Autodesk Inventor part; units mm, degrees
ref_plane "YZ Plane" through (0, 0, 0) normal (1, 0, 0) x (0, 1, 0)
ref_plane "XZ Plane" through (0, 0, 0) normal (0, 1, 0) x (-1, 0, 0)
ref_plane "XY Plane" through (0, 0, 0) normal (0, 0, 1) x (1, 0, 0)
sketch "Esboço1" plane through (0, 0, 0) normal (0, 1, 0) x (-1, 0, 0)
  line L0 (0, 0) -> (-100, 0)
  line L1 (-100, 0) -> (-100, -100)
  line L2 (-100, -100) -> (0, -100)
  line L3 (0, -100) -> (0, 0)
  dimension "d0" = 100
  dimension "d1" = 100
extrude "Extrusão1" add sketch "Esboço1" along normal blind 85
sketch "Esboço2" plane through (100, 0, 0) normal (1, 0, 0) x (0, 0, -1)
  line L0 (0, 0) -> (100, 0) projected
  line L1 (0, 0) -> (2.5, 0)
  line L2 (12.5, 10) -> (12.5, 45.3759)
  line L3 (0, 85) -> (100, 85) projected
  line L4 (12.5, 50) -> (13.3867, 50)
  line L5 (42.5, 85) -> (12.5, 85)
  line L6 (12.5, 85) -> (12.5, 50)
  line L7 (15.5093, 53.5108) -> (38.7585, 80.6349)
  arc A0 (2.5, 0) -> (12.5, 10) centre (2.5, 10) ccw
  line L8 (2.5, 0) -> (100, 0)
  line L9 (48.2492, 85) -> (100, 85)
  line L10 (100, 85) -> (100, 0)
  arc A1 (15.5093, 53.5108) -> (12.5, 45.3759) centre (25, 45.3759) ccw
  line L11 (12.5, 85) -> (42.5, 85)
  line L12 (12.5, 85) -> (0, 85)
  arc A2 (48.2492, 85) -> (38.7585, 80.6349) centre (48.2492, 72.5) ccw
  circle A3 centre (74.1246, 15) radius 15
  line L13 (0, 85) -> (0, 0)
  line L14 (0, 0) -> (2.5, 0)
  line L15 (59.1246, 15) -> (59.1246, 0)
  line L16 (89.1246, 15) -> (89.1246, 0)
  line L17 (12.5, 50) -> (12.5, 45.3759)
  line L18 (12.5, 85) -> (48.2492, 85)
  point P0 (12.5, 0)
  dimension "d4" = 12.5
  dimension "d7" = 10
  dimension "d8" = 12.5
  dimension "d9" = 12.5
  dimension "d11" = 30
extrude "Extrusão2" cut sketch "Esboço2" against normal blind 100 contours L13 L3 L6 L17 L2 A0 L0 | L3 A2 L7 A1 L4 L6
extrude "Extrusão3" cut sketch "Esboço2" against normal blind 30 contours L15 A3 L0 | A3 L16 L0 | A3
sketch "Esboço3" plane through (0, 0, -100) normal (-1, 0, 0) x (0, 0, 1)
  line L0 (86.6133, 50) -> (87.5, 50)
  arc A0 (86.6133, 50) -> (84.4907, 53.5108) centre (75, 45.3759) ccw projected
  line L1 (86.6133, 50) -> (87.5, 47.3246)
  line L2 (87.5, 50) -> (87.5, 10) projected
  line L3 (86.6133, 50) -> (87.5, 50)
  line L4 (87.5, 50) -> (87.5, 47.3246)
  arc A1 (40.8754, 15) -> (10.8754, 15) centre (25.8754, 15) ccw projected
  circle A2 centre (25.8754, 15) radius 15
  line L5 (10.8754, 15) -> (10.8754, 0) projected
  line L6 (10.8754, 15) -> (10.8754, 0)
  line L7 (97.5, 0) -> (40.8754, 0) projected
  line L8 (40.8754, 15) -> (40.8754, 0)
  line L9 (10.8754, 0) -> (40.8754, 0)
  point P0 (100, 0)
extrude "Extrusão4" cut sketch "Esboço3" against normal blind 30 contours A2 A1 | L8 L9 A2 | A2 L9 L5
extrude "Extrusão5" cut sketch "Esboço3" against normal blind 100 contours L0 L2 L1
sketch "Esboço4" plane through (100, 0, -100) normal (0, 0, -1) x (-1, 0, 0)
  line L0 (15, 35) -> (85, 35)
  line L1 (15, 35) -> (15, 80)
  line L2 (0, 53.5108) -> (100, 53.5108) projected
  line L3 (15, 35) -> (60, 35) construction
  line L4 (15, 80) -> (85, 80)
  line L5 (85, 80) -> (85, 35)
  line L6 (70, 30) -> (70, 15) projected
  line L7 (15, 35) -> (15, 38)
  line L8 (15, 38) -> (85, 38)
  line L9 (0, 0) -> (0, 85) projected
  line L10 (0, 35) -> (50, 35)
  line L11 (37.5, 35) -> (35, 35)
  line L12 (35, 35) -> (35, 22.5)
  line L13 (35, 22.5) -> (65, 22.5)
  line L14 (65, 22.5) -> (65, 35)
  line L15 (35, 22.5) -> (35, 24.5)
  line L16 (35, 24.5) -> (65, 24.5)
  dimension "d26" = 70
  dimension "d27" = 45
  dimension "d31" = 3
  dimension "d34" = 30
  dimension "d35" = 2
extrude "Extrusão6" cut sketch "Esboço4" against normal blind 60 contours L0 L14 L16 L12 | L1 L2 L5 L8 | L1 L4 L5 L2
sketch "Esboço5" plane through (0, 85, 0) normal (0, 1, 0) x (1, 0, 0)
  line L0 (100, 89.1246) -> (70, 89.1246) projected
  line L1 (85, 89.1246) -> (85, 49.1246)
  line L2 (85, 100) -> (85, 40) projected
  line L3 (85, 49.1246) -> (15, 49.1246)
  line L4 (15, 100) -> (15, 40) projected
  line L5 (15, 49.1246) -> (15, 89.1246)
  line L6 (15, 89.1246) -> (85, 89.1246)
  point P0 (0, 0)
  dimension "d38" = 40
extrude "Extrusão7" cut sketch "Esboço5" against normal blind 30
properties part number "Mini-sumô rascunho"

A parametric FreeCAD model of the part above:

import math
import FreeCAD as App
import Part
import Sketcher

V = App.Vector

doc = App.newDocument("Part")
body = doc.addObject("PartDesign::Body", "Body")

# Sketch on XZ plane
sketch1 = doc.addObject("Sketcher::SketchObject", "Sketch")
body.addObject(sketch1)
sketch1.AttachmentSupport = (doc.XZ_Plane, [""])
sketch1.MapMode = "FlatFace"
sketch1.addGeometry(Part.LineSegment(V(0, -100, 0), V(0, 0, 0)), False)
sketch1.addGeometry(Part.LineSegment(V(0, 0, 0), V(100, 0, 0)), False)
sketch1.addGeometry(Part.LineSegment(V(100, 0, 0), V(100, -100, 0)), False)
sketch1.addGeometry(Part.LineSegment(V(100, -100, 0), V(0, -100, 0)), False)
sketch1.addConstraint(Sketcher.Constraint("Coincident", 0, 2, 1, 1))
sketch1.addConstraint(Sketcher.Constraint("Coincident", 1, 2, 2, 1))
sketch1.addConstraint(Sketcher.Constraint("Coincident", 2, 2, 3, 1))
sketch1.addConstraint(Sketcher.Constraint("Coincident", 3, 2, 0, 1))
sketch1.addConstraint(Sketcher.Constraint("Vertical", 0))
sketch1.addConstraint(Sketcher.Constraint("Horizontal", 1))
sketch1.addConstraint(Sketcher.Constraint("Vertical", 2))
sketch1.addConstraint(Sketcher.Constraint("Horizontal", 3))
sketch1.addConstraint(Sketcher.Constraint("Coincident", 0, 2, -1, 1))
sketch1.addConstraint(Sketcher.Constraint("Equal", 3, 0))
sketch1.addConstraint(Sketcher.Constraint("DistanceX", 1, 1, 1, 2, 100.0))
pad1 = doc.addObject("PartDesign::Pad", "Pad")
body.addObject(pad1)
pad1.Profile = sketch1
pad1.Length = 85
pad1.Reversed = True

# Sketch on YZ plane
sketch2 = doc.addObject("Sketcher::SketchObject", "Sketch001")
body.addObject(sketch2)
sketch2.AttachmentSupport = (doc.YZ_Plane, [""])
sketch2.MapMode = "FlatFace"
sketch2.AttachmentOffset = App.Placement(V(0, 0, 100), App.Rotation())
sketch2.addGeometry(Part.LineSegment(V(85, 0, 0), V(0, 0, 0)), False)
sketch2.addGeometry(Part.LineSegment(V(0, 0, 0), V(0, -2.5, 0)), False)
sketch2.addGeometry(Part.ArcOfCircle(Part.Circle(V(10, -2.5, 0), V(0, 0, 1), 10), math.radians(180), math.radians(270)), False)
sketch2.addGeometry(Part.LineSegment(V(10, -12.5, 0), V(50, -12.5, 0)), False)
sketch2.addGeometry(Part.LineSegment(V(50, -12.5, 0), V(50, -13.3867, 0)), False)
sketch2.addGeometry(Part.ArcOfCircle(Part.Circle(V(45.3759, -25, 0), V(0, 0, 1), 12.499999), math.radians(49.398656), math.radians(68.288899)), False)
sketch2.addGeometry(Part.LineSegment(V(53.5108, -15.5093, 0), V(80.6349, -38.7585, 0)), False)
sketch2.addGeometry(Part.ArcOfCircle(Part.Circle(V(72.5, -48.2492, 0), V(0, 0, 1), 12.5), math.radians(0), math.radians(49.398656)), False)
sketch2.addGeometry(Part.LineSegment(V(85, -48.2492, 0), V(85, 0, 0)), False)
sketch2.addConstraint(Sketcher.Constraint("Coincident", 0, 2, 1, 1))
sketch2.addConstraint(Sketcher.Constraint("Tangent", 1, 2, 2, 1))
sketch2.addConstraint(Sketcher.Constraint("Tangent", 2, 2, 3, 1))
sketch2.addConstraint(Sketcher.Constraint("Coincident", 3, 2, 4, 1))
sketch2.addConstraint(Sketcher.Constraint("Coincident", 4, 2, 5, 2))
sketch2.addConstraint(Sketcher.Constraint("Tangent", 5, 1, 6, 1))
sketch2.addConstraint(Sketcher.Constraint("Tangent", 6, 2, 7, 2))
sketch2.addConstraint(Sketcher.Constraint("Tangent", 7, 1, 8, 1))
sketch2.addConstraint(Sketcher.Constraint("Coincident", 8, 2, 0, 1))
sketch2.addConstraint(Sketcher.Constraint("Horizontal", 0))
sketch2.addConstraint(Sketcher.Constraint("Vertical", 1))
sketch2.addConstraint(Sketcher.Constraint("Horizontal", 3))
sketch2.addConstraint(Sketcher.Constraint("Vertical", 4))
sketch2.addConstraint(Sketcher.Constraint("Vertical", 8))
sketch2.addConstraint(Sketcher.Constraint("Coincident", 0, 2, -1, 1))
sketch2.addConstraint(Sketcher.Constraint("Equal", 5, 7))
sketch2.addConstraint(Sketcher.Constraint("Radius", 2, 10.0))
sketch2.addConstraint(Sketcher.Constraint("Radius", 5, 12.5))
sketch2.addConstraint(Sketcher.Constraint("DistanceY", 2, 2, -1, 1, 12.5))
sketch2.addConstraint(Sketcher.Constraint("DistanceY", 5, 3, 2, 2, 12.5))
sketch2.addConstraint(Sketcher.Constraint("DistanceX", 0, 2, 0, 1, 85.0))
sketch2.addConstraint(Sketcher.Constraint("DistanceX", 3, 1, 3, 2, 40.0))
sketch2.addConstraint(Sketcher.Constraint("DistanceY", 7, 3, 5, 1, 32.74))
sketch2.addConstraint(Sketcher.Constraint("DistanceY", 4, 2, 4, 1, 0.8867))
pocket1 = doc.addObject("PartDesign::Pocket", "Pocket")
body.addObject(pocket1)
pocket1.Profile = sketch2
pocket1.Length = 100

# Sketch on YZ plane
sketch3 = doc.addObject("Sketcher::SketchObject", "Sketch002")
body.addObject(sketch3)
sketch3.AttachmentSupport = (doc.YZ_Plane, [""])
sketch3.MapMode = "FlatFace"
sketch3.AttachmentOffset = App.Placement(V(0, 0, 100), App.Rotation())
sketch3.addGeometry(Part.LineSegment(V(15, -59.1246, 0), V(0, -59.1246, 0)), False)
sketch3.addGeometry(Part.LineSegment(V(0, -59.1246, 0), V(0, -89.1246, 0)), False)
sketch3.addGeometry(Part.LineSegment(V(0, -89.1246, 0), V(15, -89.1246, 0)), False)
sketch3.addGeometry(Part.ArcOfCircle(Part.Circle(V(15, -74.1246, 0), V(0, 0, 1), 15), math.radians(-90), math.radians(90)), False)
sketch3.addConstraint(Sketcher.Constraint("Coincident", 0, 2, 1, 1))
sketch3.addConstraint(Sketcher.Constraint("Coincident", 1, 2, 2, 1))
sketch3.addConstraint(Sketcher.Constraint("Tangent", 2, 2, 3, 1))
sketch3.addConstraint(Sketcher.Constraint("Tangent", 3, 2, 0, 1))
sketch3.addConstraint(Sketcher.Constraint("Horizontal", 0))
sketch3.addConstraint(Sketcher.Constraint("Vertical", 1))
sketch3.addConstraint(Sketcher.Constraint("Horizontal", 2))
sketch3.addConstraint(Sketcher.Constraint("PointOnObject", 0, 2, -2))
sketch3.addConstraint(Sketcher.Constraint("Radius", 3, 15.0))
sketch3.addConstraint(Sketcher.Constraint("DistanceX", 0, 2, 0, 1, 15.0))
sketch3.addConstraint(Sketcher.Constraint("DistanceY", 3, 3, -1, 1, 74.1246))
pocket2 = doc.addObject("PartDesign::Pocket", "Pocket001")
body.addObject(pocket2)
pocket2.Profile = sketch3
pocket2.Length = 30

# Sketch on YZ plane
sketch4 = doc.addObject("Sketcher::SketchObject", "Sketch003")
body.addObject(sketch4)
sketch4.AttachmentSupport = (doc.YZ_Plane, [""])
sketch4.MapMode = "FlatFace"
sketch4.addGeometry(Part.ArcOfCircle(Part.Circle(V(15, -74.1246, 0), V(0, 0, 1), 15), math.radians(-90), math.radians(90)), False)
sketch4.addGeometry(Part.LineSegment(V(15, -89.1246, 0), V(0, -89.1246, 0)), False)
sketch4.addGeometry(Part.LineSegment(V(0, -89.1246, 0), V(0, -59.1246, 0)), False)
sketch4.addGeometry(Part.LineSegment(V(0, -59.1246, 0), V(15, -59.1246, 0)), False)
sketch4.addConstraint(Sketcher.Constraint("Tangent", 0, 1, 1, 1))
sketch4.addConstraint(Sketcher.Constraint("Coincident", 1, 2, 2, 1))
sketch4.addConstraint(Sketcher.Constraint("Coincident", 2, 2, 3, 1))
sketch4.addConstraint(Sketcher.Constraint("Tangent", 3, 2, 0, 2))
sketch4.addConstraint(Sketcher.Constraint("Horizontal", 1))
sketch4.addConstraint(Sketcher.Constraint("Vertical", 2))
sketch4.addConstraint(Sketcher.Constraint("Horizontal", 3))
sketch4.addConstraint(Sketcher.Constraint("PointOnObject", 1, 2, -2))
sketch4.addConstraint(Sketcher.Constraint("Radius", 0, 15.0))
sketch4.addConstraint(Sketcher.Constraint("DistanceX", 1, 2, 1, 1, 15.0))
sketch4.addConstraint(Sketcher.Constraint("DistanceY", 0, 3, -1, 1, 74.1246))
pocket3 = doc.addObject("PartDesign::Pocket", "Pocket002")
body.addObject(pocket3)
pocket3.Profile = sketch4
pocket3.Length = 30
pocket3.Reversed = True

# Sketch on YZ plane
sketch5 = doc.addObject("Sketcher::SketchObject", "Sketch004")
body.addObject(sketch5)
sketch5.AttachmentSupport = (doc.YZ_Plane, [""])
sketch5.MapMode = "FlatFace"
sketch5.addGeometry(Part.LineSegment(V(50, -12.5, 0), V(50, -13.3867, 0)), False)
sketch5.addGeometry(Part.LineSegment(V(50, -13.3867, 0), V(47.3246, -12.5, 0)), False)
sketch5.addGeometry(Part.LineSegment(V(47.3246, -12.5, 0), V(50, -12.5, 0)), False)
sketch5.addConstraint(Sketcher.Constraint("Coincident", 0, 2, 1, 1))
sketch5.addConstraint(Sketcher.Constraint("Coincident", 1, 2, 2, 1))
sketch5.addConstraint(Sketcher.Constraint("Coincident", 2, 2, 0, 1))
sketch5.addConstraint(Sketcher.Constraint("Vertical", 0))
sketch5.addConstraint(Sketcher.Constraint("Horizontal", 2))
sketch5.addConstraint(Sketcher.Constraint("DistanceX", -1, 1, 0, 2, 50.0))
sketch5.addConstraint(Sketcher.Constraint("DistanceY", 1, 2, -1, 1, 12.5))
sketch5.addConstraint(Sketcher.Constraint("DistanceX", 2, 1, 2, 2, 2.6754))
sketch5.addConstraint(Sketcher.Constraint("DistanceY", 0, 2, 0, 1, 0.8867))
pocket4 = doc.addObject("PartDesign::Pocket", "Pocket003")
body.addObject(pocket4)
pocket4.Profile = sketch5
pocket4.Length = 100
pocket4.Reversed = True

# Sketch on XY plane
sketch6 = doc.addObject("Sketcher::SketchObject", "Sketch005")
body.addObject(sketch6)
sketch6.AttachmentSupport = (doc.XY_Plane, [""])
sketch6.MapMode = "FlatFace"
sketch6.AttachmentOffset = App.Placement(V(0, 0, -100), App.Rotation())
sketch6.addGeometry(Part.LineSegment(V(35, 35, 0), V(65, 35, 0)), False)
sketch6.addGeometry(Part.LineSegment(V(65, 35, 0), V(65, 24.5, 0)), False)
sketch6.addGeometry(Part.LineSegment(V(65, 24.5, 0), V(35, 24.5, 0)), False)
sketch6.addGeometry(Part.LineSegment(V(35, 24.5, 0), V(35, 35, 0)), False)
sketch6.addGeometry(Part.LineSegment(V(85, 38, 0), V(15, 38, 0)), False)
sketch6.addGeometry(Part.LineSegment(V(15, 38, 0), V(15, 80, 0)), False)
sketch6.addGeometry(Part.LineSegment(V(15, 80, 0), V(85, 80, 0)), False)
sketch6.addGeometry(Part.LineSegment(V(85, 80, 0), V(85, 38, 0)), False)
sketch6.addConstraint(Sketcher.Constraint("Coincident", 0, 2, 1, 1))
sketch6.addConstraint(Sketcher.Constraint("Coincident", 1, 2, 2, 1))
sketch6.addConstraint(Sketcher.Constraint("Coincident", 2, 2, 3, 1))
sketch6.addConstraint(Sketcher.Constraint("Coincident", 3, 2, 0, 1))
sketch6.addConstraint(Sketcher.Constraint("Coincident", 4, 2, 5, 1))
sketch6.addConstraint(Sketcher.Constraint("Coincident", 5, 2, 6, 1))
sketch6.addConstraint(Sketcher.Constraint("Coincident", 6, 2, 7, 1))
sketch6.addConstraint(Sketcher.Constraint("Coincident", 7, 2, 4, 1))
sketch6.addConstraint(Sketcher.Constraint("Horizontal", 0))
sketch6.addConstraint(Sketcher.Constraint("Vertical", 1))
sketch6.addConstraint(Sketcher.Constraint("Horizontal", 2))
sketch6.addConstraint(Sketcher.Constraint("Vertical", 3))
sketch6.addConstraint(Sketcher.Constraint("Horizontal", 4))
sketch6.addConstraint(Sketcher.Constraint("Vertical", 5))
sketch6.addConstraint(Sketcher.Constraint("Horizontal", 6))
sketch6.addConstraint(Sketcher.Constraint("Vertical", 7))
sketch6.addConstraint(Sketcher.Constraint("DistanceX", 0, 1, 0, 2, 30.0))
sketch6.addConstraint(Sketcher.Constraint("DistanceX", 4, 2, 4, 1, 70.0))
sketch6.addConstraint(Sketcher.Constraint("DistanceY", 3, 2, 4, 2, 3.0))
sketch6.addConstraint(Sketcher.Constraint("DistanceY", 3, 2, 5, 2, 45.0))
sketch6.addConstraint(Sketcher.Constraint("DistanceY", 1, 2, 1, 1, 10.5))
sketch6.addConstraint(Sketcher.Constraint("DistanceX", -1, 1, 0, 2, 65.0))
sketch6.addConstraint(Sketcher.Constraint("DistanceY", -1, 1, 0, 2, 35.0))
sketch6.addConstraint(Sketcher.Constraint("DistanceX", -1, 1, 4, 2, 15.0))
pocket5 = doc.addObject("PartDesign::Pocket", "Pocket004")
body.addObject(pocket5)
pocket5.Profile = sketch6
pocket5.Length = 60
pocket5.Reversed = True

# Sketch on XZ plane
sketch7 = doc.addObject("Sketcher::SketchObject", "Sketch006")
body.addObject(sketch7)
sketch7.AttachmentSupport = (doc.XZ_Plane, [""])
sketch7.MapMode = "FlatFace"
sketch7.AttachmentOffset = App.Placement(V(0, 0, -85), App.Rotation())
sketch7.addGeometry(Part.LineSegment(V(85, -49.1246, 0), V(85, -89.1246, 0)), False)
sketch7.addGeometry(Part.LineSegment(V(85, -89.1246, 0), V(15, -89.1246, 0)), False)
sketch7.addGeometry(Part.LineSegment(V(15, -89.1246, 0), V(15, -49.1246, 0)), False)
sketch7.addGeometry(Part.LineSegment(V(15, -49.1246, 0), V(85, -49.1246, 0)), False)
sketch7.addConstraint(Sketcher.Constraint("Coincident", 0, 2, 1, 1))
sketch7.addConstraint(Sketcher.Constraint("Coincident", 1, 2, 2, 1))
sketch7.addConstraint(Sketcher.Constraint("Coincident", 2, 2, 3, 1))
sketch7.addConstraint(Sketcher.Constraint("Coincident", 3, 2, 0, 1))
sketch7.addConstraint(Sketcher.Constraint("Vertical", 0))
sketch7.addConstraint(Sketcher.Constraint("Horizontal", 1))
sketch7.addConstraint(Sketcher.Constraint("Vertical", 2))
sketch7.addConstraint(Sketcher.Constraint("Horizontal", 3))
sketch7.addConstraint(Sketcher.Constraint("DistanceY", 0, 2, 0, 1, 40.0))
sketch7.addConstraint(Sketcher.Constraint("DistanceX", 1, 2, 1, 1, 70.0))
sketch7.addConstraint(Sketcher.Constraint("DistanceX", -1, 1, 0, 2, 85.0))
sketch7.addConstraint(Sketcher.Constraint("DistanceY", 0, 2, -1, 1, 89.1246))
pocket6 = doc.addObject("PartDesign::Pocket", "Pocket005")
body.addObject(pocket6)
pocket6.Profile = sketch7
pocket6.Length = 30
pocket6.Reversed = True

doc.recompute()
